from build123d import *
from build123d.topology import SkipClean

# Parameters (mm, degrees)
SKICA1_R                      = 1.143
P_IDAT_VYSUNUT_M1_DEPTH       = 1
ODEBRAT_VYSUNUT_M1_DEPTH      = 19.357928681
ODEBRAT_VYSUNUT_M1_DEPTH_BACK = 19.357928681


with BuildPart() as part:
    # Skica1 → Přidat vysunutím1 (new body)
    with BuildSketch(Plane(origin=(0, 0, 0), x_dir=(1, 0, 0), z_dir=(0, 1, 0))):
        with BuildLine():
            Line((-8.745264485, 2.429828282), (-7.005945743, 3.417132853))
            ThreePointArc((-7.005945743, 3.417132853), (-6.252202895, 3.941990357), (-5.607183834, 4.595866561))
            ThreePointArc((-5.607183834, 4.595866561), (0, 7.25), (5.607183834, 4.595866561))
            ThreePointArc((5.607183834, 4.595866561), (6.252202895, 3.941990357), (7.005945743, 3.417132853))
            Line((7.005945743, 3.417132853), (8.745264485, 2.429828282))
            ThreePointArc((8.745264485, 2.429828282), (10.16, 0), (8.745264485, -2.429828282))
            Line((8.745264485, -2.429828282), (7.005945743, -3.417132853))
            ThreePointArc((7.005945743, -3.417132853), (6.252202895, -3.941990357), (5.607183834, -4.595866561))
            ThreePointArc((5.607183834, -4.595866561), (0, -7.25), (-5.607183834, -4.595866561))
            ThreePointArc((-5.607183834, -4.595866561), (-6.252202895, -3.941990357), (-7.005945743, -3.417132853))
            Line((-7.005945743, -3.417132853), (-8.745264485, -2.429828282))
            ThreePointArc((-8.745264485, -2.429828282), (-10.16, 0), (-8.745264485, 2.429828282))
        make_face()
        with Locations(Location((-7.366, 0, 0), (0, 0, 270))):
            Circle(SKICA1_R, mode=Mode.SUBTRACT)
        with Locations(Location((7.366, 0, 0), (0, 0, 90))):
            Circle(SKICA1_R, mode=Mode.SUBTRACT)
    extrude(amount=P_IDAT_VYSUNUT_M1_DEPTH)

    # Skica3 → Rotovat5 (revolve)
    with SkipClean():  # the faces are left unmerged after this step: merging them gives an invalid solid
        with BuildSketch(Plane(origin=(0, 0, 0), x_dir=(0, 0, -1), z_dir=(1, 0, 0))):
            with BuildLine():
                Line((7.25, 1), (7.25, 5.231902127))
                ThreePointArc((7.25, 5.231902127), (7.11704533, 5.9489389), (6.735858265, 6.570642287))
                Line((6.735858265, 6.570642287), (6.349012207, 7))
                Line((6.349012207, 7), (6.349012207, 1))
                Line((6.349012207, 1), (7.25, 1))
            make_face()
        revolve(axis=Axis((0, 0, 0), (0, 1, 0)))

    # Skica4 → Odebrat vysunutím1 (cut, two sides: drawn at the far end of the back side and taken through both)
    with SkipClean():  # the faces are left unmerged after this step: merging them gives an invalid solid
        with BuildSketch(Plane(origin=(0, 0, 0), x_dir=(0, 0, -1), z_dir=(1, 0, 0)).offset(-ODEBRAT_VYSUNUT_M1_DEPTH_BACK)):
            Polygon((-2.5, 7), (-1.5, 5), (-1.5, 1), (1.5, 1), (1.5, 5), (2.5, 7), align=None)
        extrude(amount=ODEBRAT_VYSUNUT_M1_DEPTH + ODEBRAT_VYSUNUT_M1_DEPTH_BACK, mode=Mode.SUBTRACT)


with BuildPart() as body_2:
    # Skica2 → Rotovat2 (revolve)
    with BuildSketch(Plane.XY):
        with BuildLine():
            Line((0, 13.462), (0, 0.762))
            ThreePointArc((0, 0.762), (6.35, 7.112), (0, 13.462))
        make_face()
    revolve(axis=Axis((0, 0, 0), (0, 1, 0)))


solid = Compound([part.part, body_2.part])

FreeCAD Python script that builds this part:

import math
import FreeCAD as App
import Part
import Sketcher

doc = App.newDocument("Part")
params = doc.addObject("Spreadsheet::Sheet", "Params")
for row, (alias, value) in enumerate([
    ("sketch1_radius", "5 mm"),
    ("sketch1_radius2", "7.25 mm"),
    ("sketch1_length", "2 mm"),
    ("pad1_length", "1 mm"),
    ("sketch2_radius", "2 mm"),
    ("sketch2_width", "6 mm"),
    ("revolution_angle", "360 deg"),
    ("sketch3_width", "4 mm"),
    ("sketch3_height", "3 mm"),
    ("sketch3_height2", "5 mm"),
    ("sketch4_radius", "6.35 mm"),
    ("revolution2_angle", "360 deg"),
], start=1):
    params.set(f"A{row}", alias)
    params.set(f"B{row}", "=" + value)
    params.setAlias(f"B{row}", alias)

body = doc.addObject("PartDesign::Body", "Body")

# Sketch on XZ plane
sketch1 = doc.addObject("Sketcher::SketchObject", "Sketch")
body.addObject(sketch1)
sketch1.AttachmentSupport = (doc.XZ_Plane, [""])
sketch1.MapMode = "FlatFace"
sketch1.addGeometry([
    Part.LineSegment(App.Vector(-7, -3.4, 0), App.Vector(-8.7, -2.4, 0)),  # 0
    Part.ArcOfCircle(Part.Circle(App.Vector(-7.4, 0, 0), App.Vector(0, 0, 1), 2.8), math.radians(120), math.radians(240)),  # 1
    Part.LineSegment(App.Vector(-8.7, 2.4, 0), App.Vector(-7, 3.4, 0)),  # 2
    Part.ArcOfCircle(Part.Circle(App.Vector(-9.5, 7.8, 0), App.Vector(0, 0, 1), 5), math.radians(-60), math.radians(-39)),  # 3
    Part.ArcOfCircle(Part.Circle(App.Vector(0, 0, 0), App.Vector(0, 0, 1), 7.2), math.radians(39), math.radians(141)),  # 4
    Part.ArcOfCircle(Part.Circle(App.Vector(9.5, 7.8, 0), App.Vector(0, 0, 1), 5), math.radians(-141), math.radians(-120)),  # 5
    Part.LineSegment(App.Vector(7, 3.4, 0), App.Vector(8.7, 2.4, 0)),  # 6
    Part.ArcOfCircle(Part.Circle(App.Vector(7.4, 0, 0), App.Vector(0, 0, 1), 2.8), math.radians(-60), math.radians(60)),  # 7
    Part.LineSegment(App.Vector(8.7, -2.4, 0), App.Vector(7, -3.4, 0)),  # 8
    Part.ArcOfCircle(Part.Circle(App.Vector(9.5, -7.8, 0), App.Vector(0, 0, 1), 5), math.radians(120), math.radians(141)),  # 9
    Part.ArcOfCircle(Part.Circle(App.Vector(0, 0, 0), App.Vector(0, 0, 1), 7.2), math.radians(-141), math.radians(-39)),  # 10
    Part.ArcOfCircle(Part.Circle(App.Vector(-9.5, -7.8, 0), App.Vector(0, 0, 1), 5), math.radians(39), math.radians(60)),  # 11
    Part.Circle(App.Vector(7.4, 0, 0), App.Vector(0, 0, 1), 1.1),  # 12
    Part.Circle(App.Vector(-7.4, 0, 0), App.Vector(0, 0, 1), 1.1),  # 13
], False)
sketch1.addConstraint([
    Sketcher.Constraint("Tangent", 0, 2, 1, 2),
    Sketcher.Constraint("Tangent", 1, 1, 2, 1),
    Sketcher.Constraint("Tangent", 2, 2, 3, 1),
    Sketcher.Constraint("Tangent", 3, 2, 4, 2),
    Sketcher.Constraint("Tangent", 4, 1, 5, 1),
    Sketcher.Constraint("Tangent", 5, 2, 6, 1),
    Sketcher.Constraint("Tangent", 6, 2, 7, 2),
    Sketcher.Constraint("Tangent", 7, 1, 8, 1),
    Sketcher.Constraint("Tangent", 8, 2, 9, 1),
    Sketcher.Constraint("Tangent", 9, 2, 10, 2),
    Sketcher.Constraint("Tangent", 10, 1, 11, 1),
    Sketcher.Constraint("Tangent", 11, 2, 0, 1),
    Sketcher.Constraint("Coincident", 4, 3, -1, 1),
    Sketcher.Constraint("Coincident", 10, 3, -1, 1),
    Sketcher.Constraint("Coincident", 12, 3, 7, 3),
    Sketcher.Constraint("Coincident", 13, 3, 1, 3),
    Sketcher.Constraint("Equal", 3, 5),
    Sketcher.Constraint("Equal", 1, 7),
    Sketcher.Constraint("Equal", 5, 9),
    Sketcher.Constraint("Equal", 4, 10),
    Sketcher.Constraint("Equal", 9, 11),
    Sketcher.Constraint("Equal", 12, 13),
    Sketcher.Constraint("Symmetric", 1, 3, 7, 3, -1, 1),
    Sketcher.Constraint("Symmetric", 2, 2, 5, 2, -2),
    Sketcher.Constraint("Parallel", 0, 6),
    Sketcher.Constraint("Parallel", 2, 8),
    Sketcher.Constraint("Radius", 3, 5.0),
    Sketcher.Constraint("Radius", 4, 7.25),
    Sketcher.Constraint("Distance", 0, 2.0),
    Sketcher.Constraint("Diameter", 12, 2.286),
    Sketcher.Constraint("Radius", 1, 2.794),
    Sketcher.Constraint("DistanceX", 1, 3, -1, 1, 7.366),
])
sketch1.setExpression("Constraints[26]", "Params.sketch1_radius")
sketch1.setExpression("Constraints[27]", "Params.sketch1_radius2")
sketch1.setExpression("Constraints[28]", "Params.sketch1_length")
pad1 = doc.addObject("PartDesign::Pad", "Pad")
body.addObject(pad1)
pad1.Profile = sketch1
pad1.setExpression("Length", "Params.pad1_length")
pad1.Reversed = True

# Sketch on YZ plane
sketch2 = doc.addObject("Sketcher::SketchObject", "Sketch001")
body.addObject(sketch2)
sketch2.AttachmentSupport = (doc.YZ_Plane, [""])
sketch2.MapMode = "FlatFace"
sketch2.addGeometry([
    Part.LineSegment(App.Vector(1, -7.2, 0), App.Vector(5.2, -7.2, 0)),  # 0
    Part.ArcOfCircle(Part.Circle(App.Vector(5.2, -5.2, 0), App.Vector(0, 0, 1), 2), math.radians(-90), math.radians(-48)),  # 1
    Part.LineSegment(App.Vector(6.6, -6.7, 0), App.Vector(7, -6.3, 0)),  # 2
    Part.LineSegment(App.Vector(7, -6.3, 0), App.Vector(1, -6.3, 0)),  # 3
    Part.LineSegment(App.Vector(1, -6.3, 0), App.Vector(1, -7.2, 0)),  # 4
], False)
sketch2.addConstraint([
    Sketcher.Constraint("Tangent", 0, 2, 1, 1),
    Sketcher.Constraint("Tangent", 1, 2, 2, 1),
    Sketcher.Constraint("Coincident", 2, 2, 3, 1),
    Sketcher.Constraint("Coincident", 3, 2, 4, 1),
    Sketcher.Constraint("Coincident", 4, 2, 0, 1),
    Sketcher.Constraint("Horizontal", 0),
    Sketcher.Constraint("Horizontal", 3),
    Sketcher.Constraint("Vertical", 4),
    Sketcher.Constraint("Radius", 1, 2.0),
    Sketcher.Constraint("DistanceX", 3, 2, 3, 1, 6.0),
    Sketcher.Constraint("DistanceX", -1, 1, 2, 2, 7.0),
    Sketcher.Constraint("DistanceY", 1, 3, -1, 1, 5.25),
    Sketcher.Constraint("DistanceX", 0, 1, 0, 2, 4.231902),
    Sketcher.Constraint("DistanceY", 4, 2, 4, 1, 0.900988),
])
sketch2.setExpression("Constraints[8]", "Params.sketch2_radius")
sketch2.setExpression("Constraints[9]", "Params.sketch2_width")
revolution = doc.addObject("PartDesign::Revolution", "Revolution")
body.addObject(revolution)
revolution.Profile = sketch2
revolution.ReferenceAxis = (sketch2, ["H_Axis"])
revolution.setExpression("Angle", "Params.revolution_angle")

# Sketch on YZ plane
sketch3 = doc.addObject("Sketcher::SketchObject", "Sketch002")
body.addObject(sketch3)
sketch3.AttachmentSupport = (doc.YZ_Plane, [""])
sketch3.MapMode = "FlatFace"
sketch3.addGeometry([
    Part.LineSegment(App.Vector(7, 2.5, 0), App.Vector(5, 1.5, 0)),  # 0
    Part.LineSegment(App.Vector(5, 1.5, 0), App.Vector(1, 1.5, 0)),  # 1
    Part.LineSegment(App.Vector(1, 1.5, 0), App.Vector(1, -1.5, 0)),  # 2
    Part.LineSegment(App.Vector(1, -1.5, 0), App.Vector(5, -1.5, 0)),  # 3
    Part.LineSegment(App.Vector(5, -1.5, 0), App.Vector(7, -2.5, 0)),  # 4
    Part.LineSegment(App.Vector(7, -2.5, 0), App.Vector(7, 2.5, 0)),  # 5
], False)
sketch3.addConstraint([
    Sketcher.Constraint("Coincident", 0, 2, 1, 1),
    Sketcher.Constraint("Coincident", 1, 2, 2, 1),
    Sketcher.Constraint("Coincident", 2, 2, 3, 1),
    Sketcher.Constraint("Coincident", 3, 2, 4, 1),
    Sketcher.Constraint("Coincident", 4, 2, 5, 1),
    Sketcher.Constraint("Coincident", 5, 2, 0, 1),
    Sketcher.Constraint("Horizontal", 1),
    Sketcher.Constraint("Vertical", 2),
    Sketcher.Constraint("Horizontal", 3),
    Sketcher.Constraint("Vertical", 5),
    Sketcher.Constraint("Symmetric", 0, 2, 3, 2, -1),
    Sketcher.Constraint("Equal", 0, 4),
    Sketcher.Constraint("DistanceX", 1, 2, 1, 1, 4.0),
    Sketcher.Constraint("DistanceY", 2, 2, 2, 1, 3.0),
    Sketcher.Constraint("DistanceY", 5, 1, 5, 2, 5.0),
    Sketcher.Constraint("DistanceX", -1, 1, 0, 2, 5.0),
    Sketcher.Constraint("DistanceX", -1, 1, 4, 2, 7.0),
])
sketch3.setExpression("Constraints[12]", "Params.sketch3_width")
sketch3.setExpression("Constraints[13]", "Params.sketch3_height")
sketch3.setExpression("Constraints[14]", "Params.sketch3_height2")
pocket1 = doc.addObject("PartDesign::Pocket", "Pocket")
body.addObject(pocket1)
pocket1.Profile = sketch3
pocket1.Type = "ThroughAll"
pocket1.Midplane = True
body2 = doc.addObject("PartDesign::Body", "Body001")

# Sketch on XY plane
sketch4 = doc.addObject("Sketcher::SketchObject", "Sketch003")
body2.addObject(sketch4)
sketch4.AttachmentSupport = (doc.getObject("XY_Plane001"), [""])
sketch4.MapMode = "FlatFace"
sketch4.addGeometry([
    Part.LineSegment(App.Vector(0, 13, 0), App.Vector(0, 1, 0)),
    Part.ArcOfCircle(Part.Circle(App.Vector(0, 7, 0), App.Vector(0, 0, 1), 6), math.radians(-90), math.radians(90)),
], False)
sketch4.addConstraint([
    Sketcher.Constraint("Coincident", 0, 1, 1, 2),
    Sketcher.Constraint("Coincident", 1, 1, 0, 2),
    Sketcher.Constraint("Vertical", 0),
    Sketcher.Constraint("PointOnObject", 1, 3, -2),
    Sketcher.Constraint("PointOnObject", 0, 1, -2),
    Sketcher.Constraint("Radius", 1, 6.35),
    Sketcher.Constraint("DistanceY", -1, 1, 1, 3, 7.112),
])
sketch4.setExpression("Constraints[5]", "Params.sketch4_radius")
revolution2 = doc.addObject("PartDesign::Revolution", "Revolution001")
body2.addObject(revolution2)
revolution2.Profile = sketch4
revolution2.ReferenceAxis = (sketch4, ["V_Axis"])
revolution2.setExpression("Angle", "Params.revolution2_angle")

doc.recompute()
